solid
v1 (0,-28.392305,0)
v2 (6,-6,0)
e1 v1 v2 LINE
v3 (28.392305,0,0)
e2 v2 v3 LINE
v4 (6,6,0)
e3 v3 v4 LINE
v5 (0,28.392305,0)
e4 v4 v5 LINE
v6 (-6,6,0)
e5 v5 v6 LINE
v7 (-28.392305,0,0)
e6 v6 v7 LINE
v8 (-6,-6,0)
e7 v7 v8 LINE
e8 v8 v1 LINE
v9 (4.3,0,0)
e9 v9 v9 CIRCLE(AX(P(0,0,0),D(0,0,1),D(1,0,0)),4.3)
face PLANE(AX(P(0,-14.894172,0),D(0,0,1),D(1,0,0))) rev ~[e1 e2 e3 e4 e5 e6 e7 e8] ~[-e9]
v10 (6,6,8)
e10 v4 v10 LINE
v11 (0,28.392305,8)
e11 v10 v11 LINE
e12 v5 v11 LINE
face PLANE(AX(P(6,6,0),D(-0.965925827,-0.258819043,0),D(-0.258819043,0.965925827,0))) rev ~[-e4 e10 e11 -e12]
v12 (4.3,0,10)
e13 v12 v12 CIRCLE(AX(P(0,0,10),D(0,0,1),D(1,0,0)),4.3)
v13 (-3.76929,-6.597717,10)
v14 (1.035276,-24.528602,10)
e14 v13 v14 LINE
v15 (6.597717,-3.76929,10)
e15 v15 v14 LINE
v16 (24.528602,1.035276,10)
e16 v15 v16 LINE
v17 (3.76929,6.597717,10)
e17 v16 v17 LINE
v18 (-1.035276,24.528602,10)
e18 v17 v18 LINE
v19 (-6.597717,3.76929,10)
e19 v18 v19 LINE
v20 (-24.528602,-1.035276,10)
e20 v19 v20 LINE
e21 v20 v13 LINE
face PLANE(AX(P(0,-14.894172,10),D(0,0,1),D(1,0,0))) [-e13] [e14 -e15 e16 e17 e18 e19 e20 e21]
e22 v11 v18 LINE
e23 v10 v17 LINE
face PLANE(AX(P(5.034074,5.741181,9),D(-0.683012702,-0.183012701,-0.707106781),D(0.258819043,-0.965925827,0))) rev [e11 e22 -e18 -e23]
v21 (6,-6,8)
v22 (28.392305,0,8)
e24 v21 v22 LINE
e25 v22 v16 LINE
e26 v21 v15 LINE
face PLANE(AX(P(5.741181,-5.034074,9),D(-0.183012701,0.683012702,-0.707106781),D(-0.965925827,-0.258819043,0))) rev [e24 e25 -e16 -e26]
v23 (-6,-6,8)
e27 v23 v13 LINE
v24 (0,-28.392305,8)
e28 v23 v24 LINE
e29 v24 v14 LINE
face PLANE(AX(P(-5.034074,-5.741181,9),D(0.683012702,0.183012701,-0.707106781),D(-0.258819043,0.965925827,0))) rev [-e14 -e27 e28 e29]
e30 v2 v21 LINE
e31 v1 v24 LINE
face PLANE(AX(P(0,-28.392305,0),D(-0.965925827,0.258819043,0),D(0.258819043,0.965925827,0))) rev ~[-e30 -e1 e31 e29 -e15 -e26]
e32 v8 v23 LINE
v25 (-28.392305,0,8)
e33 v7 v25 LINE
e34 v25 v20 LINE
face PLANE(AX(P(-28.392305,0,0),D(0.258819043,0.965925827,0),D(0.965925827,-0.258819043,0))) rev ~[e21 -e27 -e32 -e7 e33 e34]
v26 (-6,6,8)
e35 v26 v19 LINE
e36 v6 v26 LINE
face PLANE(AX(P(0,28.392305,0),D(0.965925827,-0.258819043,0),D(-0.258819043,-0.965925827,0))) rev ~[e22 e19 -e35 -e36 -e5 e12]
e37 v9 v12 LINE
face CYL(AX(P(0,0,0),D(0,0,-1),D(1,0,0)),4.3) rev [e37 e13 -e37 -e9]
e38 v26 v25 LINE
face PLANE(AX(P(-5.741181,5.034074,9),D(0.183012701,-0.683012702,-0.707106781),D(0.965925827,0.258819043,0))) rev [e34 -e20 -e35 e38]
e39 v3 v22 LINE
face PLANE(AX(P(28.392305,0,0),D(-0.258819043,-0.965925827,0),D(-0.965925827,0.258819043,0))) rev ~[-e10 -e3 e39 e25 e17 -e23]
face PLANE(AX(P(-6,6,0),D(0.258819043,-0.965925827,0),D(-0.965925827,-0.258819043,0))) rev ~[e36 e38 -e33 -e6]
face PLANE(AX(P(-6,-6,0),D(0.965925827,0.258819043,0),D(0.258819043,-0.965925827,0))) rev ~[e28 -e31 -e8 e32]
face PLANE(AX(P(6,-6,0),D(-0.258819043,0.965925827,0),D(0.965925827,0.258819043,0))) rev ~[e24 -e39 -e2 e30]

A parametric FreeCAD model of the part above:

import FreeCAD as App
import Part
import Sketcher

V = App.Vector
Q = App.Units.Quantity


def edges_at(feature, points):
    """Names of the edges that pass closest to the given points."""
    edges = feature.Shape.Edges
    near = lambda p: min(range(len(edges)), key=lambda i: edges[i].distToShape(Part.Vertex(*p))[0])
    return sorted({f"Edge{near(p) + 1}" for p in points})


def add_polygon(sketch, points):
    """Adds a closed chain of lines whose ends are joined by coincident constraints."""
    first, n = sketch.GeometryCount, len(points)
    for a, b in zip(points, points[1:] + points[:1]):
        sketch.addGeometry(Part.LineSegment(App.Vector(*a, 0), App.Vector(*b, 0)), False)
    for i in range(n):
        sketch.addConstraint(Sketcher.Constraint("Coincident", first + i, 2, first + (i + 1) % n, 1))

doc = App.newDocument("Part")
body = doc.addObject("PartDesign::Body", "Body")

sketch1 = body.newObject("Sketcher::SketchObject", "Sketch")
sketch1.AttachmentSupport = (doc.getObject("XY_Plane"), [""])
sketch1.MapMode = "FlatFace"
add_polygon(sketch1, [(0, -28.392305), (6, -6), (28.392305, 0), (6, 6), (0, 28.392305), (-6, 6), (-28.392305, 0), (-6, -6)])
sketch1.addGeometry(Part.Circle(V(0, 0, 0), V(0, 0, 1), 4.3), False)
sketch1.addConstraint(Sketcher.Constraint("Coincident", 8, 3, -1, 1))
sketch1.addConstraint(Sketcher.Constraint("Symmetric", 0, 2, 4, 2, -1, 1))
sketch1.addConstraint(Sketcher.Constraint("Symmetric", 1, 2, 5, 2, -1, 1))
sketch1.addConstraint(Sketcher.Constraint("Symmetric", 2, 2, 6, 2, -1, 1))
sketch1.addConstraint(Sketcher.Constraint("Symmetric", 3, 2, 7, 2, -1, 1))
sketch1.addConstraint(Sketcher.Constraint("Symmetric", 2, 2, 4, 2, -2))
sketch1.addConstraint(Sketcher.Constraint("PointOnObject", 1, 2, -1))
sketch1.addConstraint(Sketcher.Constraint("PointOnObject", 3, 2, -2))
sketch1.addConstraint(Sketcher.Constraint("Perpendicular", 0, 2))
sketch1.addConstraint(Sketcher.Constraint("Equal", 0, 1))
sketch1.addConstraint(Sketcher.Constraint("Diameter", 8, Q("8.6 mm")))
sketch1.addConstraint(Sketcher.Constraint("Angle", 0, Q("75 deg")))
sketch1.addConstraint(Sketcher.Constraint("DistanceX", -1, 1, 0, 2, Q("6 mm")))
pad1 = body.newObject("PartDesign::Pad", "Pad")
pad1.Profile = sketch1
pad1.Length = 10
doc.recompute()

chamfer = body.newObject("PartDesign::Chamfer", "Chamfer")
chamfer.Base = (pad1, edges_at(pad1, [
    (-3, -17.196, 10),
    (-17.196, 3, 10),
    (3, 17.196, 10),
    (17.196, -3, 10),
]))
chamfer.Size = 2

doc.recompute()
